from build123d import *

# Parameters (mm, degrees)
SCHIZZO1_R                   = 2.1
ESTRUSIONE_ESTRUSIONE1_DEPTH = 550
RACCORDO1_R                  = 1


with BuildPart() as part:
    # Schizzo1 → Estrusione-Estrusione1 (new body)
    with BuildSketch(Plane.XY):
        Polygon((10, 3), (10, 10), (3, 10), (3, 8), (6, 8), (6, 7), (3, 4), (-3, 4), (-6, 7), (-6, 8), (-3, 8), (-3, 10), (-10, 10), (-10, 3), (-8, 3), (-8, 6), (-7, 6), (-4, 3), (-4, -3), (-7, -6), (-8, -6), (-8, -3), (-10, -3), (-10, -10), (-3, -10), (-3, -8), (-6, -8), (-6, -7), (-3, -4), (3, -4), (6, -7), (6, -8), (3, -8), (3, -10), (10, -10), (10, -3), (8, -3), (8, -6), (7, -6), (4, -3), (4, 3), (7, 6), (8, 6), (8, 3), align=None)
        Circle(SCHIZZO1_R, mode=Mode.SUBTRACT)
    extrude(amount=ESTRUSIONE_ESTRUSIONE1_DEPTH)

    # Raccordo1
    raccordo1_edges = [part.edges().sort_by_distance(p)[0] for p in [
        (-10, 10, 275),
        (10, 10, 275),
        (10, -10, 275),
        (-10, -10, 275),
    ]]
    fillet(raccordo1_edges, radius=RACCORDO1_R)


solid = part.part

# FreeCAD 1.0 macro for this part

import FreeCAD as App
import Part
import Sketcher
from FreeCAD import Vector


def edges_at(feature, points):
    """Names of the edges that pass closest to the given points."""
    edges = feature.Shape.Edges
    near = lambda p: min(range(len(edges)), key=lambda i: edges[i].distToShape(Part.Vertex(*p))[0])
    return sorted({f"Edge{near(p) + 1}" for p in points})

doc = App.newDocument("Part")
body = doc.addObject("PartDesign::Body", "Body")

sketch1 = doc.addObject("Sketcher::SketchObject", "Sketch")
body.addObject(sketch1)
sketch1.AttachmentSupport = (doc.XY_Plane, [""])
sketch1.MapMode = "FlatFace"
sketch1.addGeometry([
    Part.LineSegment(Vector(10, 3, 0), Vector(10, 10, 0)),
    Part.LineSegment(Vector(10, 10, 0), Vector(3, 10, 0)),
    Part.LineSegment(Vector(3, 10, 0), Vector(3, 8, 0)),
    Part.LineSegment(Vector(3, 8, 0), Vector(6, 8, 0)),
    Part.LineSegment(Vector(6, 8, 0), Vector(6, 7, 0)),
    Part.LineSegment(Vector(6, 7, 0), Vector(3, 4, 0)),
    Part.LineSegment(Vector(3, 4, 0), Vector(-3, 4, 0)),
    Part.LineSegment(Vector(-3, 4, 0), Vector(-6, 7, 0)),
    Part.LineSegment(Vector(-6, 7, 0), Vector(-6, 8, 0)),
    Part.LineSegment(Vector(-6, 8, 0), Vector(-3, 8, 0)),
    Part.LineSegment(Vector(-3, 8, 0), Vector(-3, 10, 0)),
    Part.LineSegment(Vector(-3, 10, 0), Vector(-10, 10, 0)),
    Part.LineSegment(Vector(-10, 10, 0), Vector(-10, 3, 0)),
    Part.LineSegment(Vector(-10, 3, 0), Vector(-8, 3, 0)),
    Part.LineSegment(Vector(-8, 3, 0), Vector(-8, 6, 0)),
    Part.LineSegment(Vector(-8, 6, 0), Vector(-7, 6, 0)),
    Part.LineSegment(Vector(-7, 6, 0), Vector(-4, 3, 0)),
    Part.LineSegment(Vector(-4, 3, 0), Vector(-4, -3, 0)),
    Part.LineSegment(Vector(-4, -3, 0), Vector(-7, -6, 0)),
    Part.LineSegment(Vector(-7, -6, 0), Vector(-8, -6, 0)),
    Part.LineSegment(Vector(-8, -6, 0), Vector(-8, -3, 0)),
    Part.LineSegment(Vector(-8, -3, 0), Vector(-10, -3, 0)),
    Part.LineSegment(Vector(-10, -3, 0), Vector(-10, -10, 0)),
    Part.LineSegment(Vector(-10, -10, 0), Vector(-3, -10, 0)),
    Part.LineSegment(Vector(-3, -10, 0), Vector(-3, -8, 0)),
    Part.LineSegment(Vector(-3, -8, 0), Vector(-6, -8, 0)),
    Part.LineSegment(Vector(-6, -8, 0), Vector(-6, -7, 0)),
    Part.LineSegment(Vector(-6, -7, 0), Vector(-3, -4, 0)),
    Part.LineSegment(Vector(-3, -4, 0), Vector(3, -4, 0)),
    Part.LineSegment(Vector(3, -4, 0), Vector(6, -7, 0)),
    Part.LineSegment(Vector(6, -7, 0), Vector(6, -8, 0)),
    Part.LineSegment(Vector(6, -8, 0), Vector(3, -8, 0)),
    Part.LineSegment(Vector(3, -8, 0), Vector(3, -10, 0)),
    Part.LineSegment(Vector(3, -10, 0), Vector(10, -10, 0)),
    Part.LineSegment(Vector(10, -10, 0), Vector(10, -3, 0)),
    Part.LineSegment(Vector(10, -3, 0), Vector(8, -3, 0)),
    Part.LineSegment(Vector(8, -3, 0), Vector(8, -6, 0)),
    Part.LineSegment(Vector(8, -6, 0), Vector(7, -6, 0)),
    Part.LineSegment(Vector(7, -6, 0), Vector(4, -3, 0)),
    Part.LineSegment(Vector(4, -3, 0), Vector(4, 3, 0)),
    Part.LineSegment(Vector(4, 3, 0), Vector(7, 6, 0)),
    Part.LineSegment(Vector(7, 6, 0), Vector(8, 6, 0)),
    Part.LineSegment(Vector(8, 6, 0), Vector(8, 3, 0)),
    Part.LineSegment(Vector(8, 3, 0), Vector(10, 3, 0)),
    Part.Circle(Vector(0, 0, 0), Vector(0, 0, 1), 2.1),
], False)
sketch1.addConstraint([
    Sketcher.Constraint("Coincident", 0, 2, 1, 1),
    Sketcher.Constraint("Coincident", 1, 2, 2, 1),
    Sketcher.Constraint("Coincident", 2, 2, 3, 1),
    Sketcher.Constraint("Coincident", 3, 2, 4, 1),
    Sketcher.Constraint("Coincident", 4, 2, 5, 1),
    Sketcher.Constraint("Coincident", 5, 2, 6, 1),
    Sketcher.Constraint("Coincident", 6, 2, 7, 1),
    Sketcher.Constraint("Coincident", 7, 2, 8, 1),
    Sketcher.Constraint("Coincident", 8, 2, 9, 1),
    Sketcher.Constraint("Coincident", 9, 2, 10, 1),
    Sketcher.Constraint("Coincident", 10, 2, 11, 1),
    Sketcher.Constraint("Coincident", 11, 2, 12, 1),
    Sketcher.Constraint("Coincident", 12, 2, 13, 1),
    Sketcher.Constraint("Coincident", 13, 2, 14, 1),
    Sketcher.Constraint("Coincident", 14, 2, 15, 1),
    Sketcher.Constraint("Coincident", 15, 2, 16, 1),
    Sketcher.Constraint("Coincident", 16, 2, 17, 1),
    Sketcher.Constraint("Coincident", 17, 2, 18, 1),
    Sketcher.Constraint("Coincident", 18, 2, 19, 1),
    Sketcher.Constraint("Coincident", 19, 2, 20, 1),
    Sketcher.Constraint("Coincident", 20, 2, 21, 1),
    Sketcher.Constraint("Coincident", 21, 2, 22, 1),
    Sketcher.Constraint("Coincident", 22, 2, 23, 1),
    Sketcher.Constraint("Coincident", 23, 2, 24, 1),
    Sketcher.Constraint("Coincident", 24, 2, 25, 1),
    Sketcher.Constraint("Coincident", 25, 2, 26, 1),
    Sketcher.Constraint("Coincident", 26, 2, 27, 1),
    Sketcher.Constraint("Coincident", 27, 2, 28, 1),
    Sketcher.Constraint("Coincident", 28, 2, 29, 1),
    Sketcher.Constraint("Coincident", 29, 2, 30, 1),
    Sketcher.Constraint("Coincident", 30, 2, 31, 1),
    Sketcher.Constraint("Coincident", 31, 2, 32, 1),
    Sketcher.Constraint("Coincident", 32, 2, 33, 1),
    Sketcher.Constraint("Coincident", 33, 2, 34, 1),
    Sketcher.Constraint("Coincident", 34, 2, 35, 1),
    Sketcher.Constraint("Coincident", 35, 2, 36, 1),
    Sketcher.Constraint("Coincident", 36, 2, 37, 1),
    Sketcher.Constraint("Coincident", 37, 2, 38, 1),
    Sketcher.Constraint("Coincident", 38, 2, 39, 1),
    Sketcher.Constraint("Coincident", 39, 2, 40, 1),
    Sketcher.Constraint("Coincident", 40, 2, 41, 1),
    Sketcher.Constraint("Coincident", 41, 2, 42, 1),
    Sketcher.Constraint("Coincident", 42, 2, 43, 1),
    Sketcher.Constraint("Coincident", 43, 2, 0, 1),
    Sketcher.Constraint("Vertical", 0),
    Sketcher.Constraint("Horizontal", 1),
    Sketcher.Constraint("Vertical", 2),
    Sketcher.Constraint("Horizontal", 3),
    Sketcher.Constraint("Vertical", 4),
    Sketcher.Constraint("Horizontal", 6),
    Sketcher.Constraint("Vertical", 8),
    Sketcher.Constraint("Horizontal", 9),
    Sketcher.Constraint("Vertical", 10),
    Sketcher.Constraint("Horizontal", 11),
    Sketcher.Constraint("Vertical", 12),
    Sketcher.Constraint("Horizontal", 13),
    Sketcher.Constraint("Vertical", 14),
    Sketcher.Constraint("Horizontal", 15),
    Sketcher.Constraint("Vertical", 17),
    Sketcher.Constraint("Horizontal", 19),
    Sketcher.Constraint("Vertical", 20),
    Sketcher.Constraint("Horizontal", 21),
    Sketcher.Constraint("Vertical", 22),
    Sketcher.Constraint("Horizontal", 23),
    Sketcher.Constraint("Vertical", 24),
    Sketcher.Constraint("Horizontal", 25),
    Sketcher.Constraint("Vertical", 26),
    Sketcher.Constraint("Horizontal", 28),
    Sketcher.Constraint("Vertical", 30),
    Sketcher.Constraint("Horizontal", 31),
    Sketcher.Constraint("Vertical", 32),
    Sketcher.Constraint("Horizontal", 33),
    Sketcher.Constraint("Vertical", 34),
    Sketcher.Constraint("Horizontal", 35),
    Sketcher.Constraint("Vertical", 36),
    Sketcher.Constraint("Horizontal", 37),
    Sketcher.Constraint("Vertical", 39),
    Sketcher.Constraint("Horizontal", 41),
    Sketcher.Constraint("Vertical", 42),
    Sketcher.Constraint("Horizontal", 43),
    Sketcher.Constraint("Coincident", 44, 3, -1, 1),
    Sketcher.Constraint("Symmetric", 0, 2, 22, 2, -1, 1),
    Sketcher.Constraint("Symmetric", 2, 2, 24, 2, -1, 1),
    Sketcher.Constraint("Symmetric", 4, 2, 26, 2, -1, 1),
    Sketcher.Constraint("Symmetric", 5, 2, 27, 2, -1, 1),
    Sketcher.Constraint("Symmetric", 7, 2, 29, 2, -1, 1),
    Sketcher.Constraint("Symmetric", 9, 2, 31, 2, -1, 1),
    Sketcher.Constraint("Symmetric", 11, 2, 33, 2, -1, 1),
    Sketcher.Constraint("Symmetric", 13, 2, 35, 2, -1, 1),
    Sketcher.Constraint("Symmetric", 15, 2, 37, 2, -1, 1),
    Sketcher.Constraint("Symmetric", 16, 2, 38, 2, -1, 1),
    Sketcher.Constraint("Symmetric", 18, 2, 40, 2, -1, 1),
    Sketcher.Constraint("Symmetric", 20, 2, 42, 2, -1, 1),
    Sketcher.Constraint("Symmetric", 4, 2, 7, 2, -2),
    Sketcher.Constraint("Symmetric", 2, 2, 9, 2, -2),
    Sketcher.Constraint("Symmetric", 0, 2, 11, 2, -2),
    Sketcher.Constraint("Symmetric", 20, 2, 35, 2, -2),
    Sketcher.Constraint("Symmetric", 18, 2, 37, 2, -2),
    Sketcher.Constraint("Perpendicular", 5, 7),
    Sketcher.Constraint("Parallel", 7, 16),
    Sketcher.Constraint("Perpendicular", 16, 18),
    Sketcher.Constraint("Perpendicular", 27, 29),
    Sketcher.Constraint("Perpendicular", 38, 40),
    Sketcher.Constraint("Horizontal", 13, 2, 16, 2),
    Sketcher.Constraint("Horizontal", 17, 2, 20, 2),
    Sketcher.Constraint("Vertical", 2, 2, 5, 2),
    Sketcher.Constraint("Equal", 33, 0),
    Sketcher.Constraint("Equal", 43, 2),
    Sketcher.Constraint("Equal", 41, 4),
    Sketcher.Constraint("Equal", 31, 14),
    Sketcher.Constraint("Equal", 28, 17),
    Sketcher.Constraint("Diameter", 44, 4.2),
    Sketcher.Constraint("DistanceX", 1, 2, 1, 1, 7.0),
    Sketcher.Constraint("DistanceX", 3, 1, 3, 2, 3.0),
    Sketcher.Constraint("DistanceX", 6, 2, 6, 1, 6.0),
    Sketcher.Constraint("DistanceX", 13, 1, 13, 2, 2.0),
    Sketcher.Constraint("DistanceX", 15, 1, 15, 2, 1.0),
])
pad1 = doc.addObject("PartDesign::Pad", "Pad")
body.addObject(pad1)
pad1.Profile = sketch1
pad1.Length = 550
doc.recompute()

fillet = doc.addObject("PartDesign::Fillet", "Fillet")
body.addObject(fillet)
fillet.Base = (pad1, edges_at(pad1, [
    (-10, 10, 275),
    (10, 10, 275),
    (10, -10, 275),
    (-10, -10, 275),
]))
fillet.Radius = 1

doc.recompute()
